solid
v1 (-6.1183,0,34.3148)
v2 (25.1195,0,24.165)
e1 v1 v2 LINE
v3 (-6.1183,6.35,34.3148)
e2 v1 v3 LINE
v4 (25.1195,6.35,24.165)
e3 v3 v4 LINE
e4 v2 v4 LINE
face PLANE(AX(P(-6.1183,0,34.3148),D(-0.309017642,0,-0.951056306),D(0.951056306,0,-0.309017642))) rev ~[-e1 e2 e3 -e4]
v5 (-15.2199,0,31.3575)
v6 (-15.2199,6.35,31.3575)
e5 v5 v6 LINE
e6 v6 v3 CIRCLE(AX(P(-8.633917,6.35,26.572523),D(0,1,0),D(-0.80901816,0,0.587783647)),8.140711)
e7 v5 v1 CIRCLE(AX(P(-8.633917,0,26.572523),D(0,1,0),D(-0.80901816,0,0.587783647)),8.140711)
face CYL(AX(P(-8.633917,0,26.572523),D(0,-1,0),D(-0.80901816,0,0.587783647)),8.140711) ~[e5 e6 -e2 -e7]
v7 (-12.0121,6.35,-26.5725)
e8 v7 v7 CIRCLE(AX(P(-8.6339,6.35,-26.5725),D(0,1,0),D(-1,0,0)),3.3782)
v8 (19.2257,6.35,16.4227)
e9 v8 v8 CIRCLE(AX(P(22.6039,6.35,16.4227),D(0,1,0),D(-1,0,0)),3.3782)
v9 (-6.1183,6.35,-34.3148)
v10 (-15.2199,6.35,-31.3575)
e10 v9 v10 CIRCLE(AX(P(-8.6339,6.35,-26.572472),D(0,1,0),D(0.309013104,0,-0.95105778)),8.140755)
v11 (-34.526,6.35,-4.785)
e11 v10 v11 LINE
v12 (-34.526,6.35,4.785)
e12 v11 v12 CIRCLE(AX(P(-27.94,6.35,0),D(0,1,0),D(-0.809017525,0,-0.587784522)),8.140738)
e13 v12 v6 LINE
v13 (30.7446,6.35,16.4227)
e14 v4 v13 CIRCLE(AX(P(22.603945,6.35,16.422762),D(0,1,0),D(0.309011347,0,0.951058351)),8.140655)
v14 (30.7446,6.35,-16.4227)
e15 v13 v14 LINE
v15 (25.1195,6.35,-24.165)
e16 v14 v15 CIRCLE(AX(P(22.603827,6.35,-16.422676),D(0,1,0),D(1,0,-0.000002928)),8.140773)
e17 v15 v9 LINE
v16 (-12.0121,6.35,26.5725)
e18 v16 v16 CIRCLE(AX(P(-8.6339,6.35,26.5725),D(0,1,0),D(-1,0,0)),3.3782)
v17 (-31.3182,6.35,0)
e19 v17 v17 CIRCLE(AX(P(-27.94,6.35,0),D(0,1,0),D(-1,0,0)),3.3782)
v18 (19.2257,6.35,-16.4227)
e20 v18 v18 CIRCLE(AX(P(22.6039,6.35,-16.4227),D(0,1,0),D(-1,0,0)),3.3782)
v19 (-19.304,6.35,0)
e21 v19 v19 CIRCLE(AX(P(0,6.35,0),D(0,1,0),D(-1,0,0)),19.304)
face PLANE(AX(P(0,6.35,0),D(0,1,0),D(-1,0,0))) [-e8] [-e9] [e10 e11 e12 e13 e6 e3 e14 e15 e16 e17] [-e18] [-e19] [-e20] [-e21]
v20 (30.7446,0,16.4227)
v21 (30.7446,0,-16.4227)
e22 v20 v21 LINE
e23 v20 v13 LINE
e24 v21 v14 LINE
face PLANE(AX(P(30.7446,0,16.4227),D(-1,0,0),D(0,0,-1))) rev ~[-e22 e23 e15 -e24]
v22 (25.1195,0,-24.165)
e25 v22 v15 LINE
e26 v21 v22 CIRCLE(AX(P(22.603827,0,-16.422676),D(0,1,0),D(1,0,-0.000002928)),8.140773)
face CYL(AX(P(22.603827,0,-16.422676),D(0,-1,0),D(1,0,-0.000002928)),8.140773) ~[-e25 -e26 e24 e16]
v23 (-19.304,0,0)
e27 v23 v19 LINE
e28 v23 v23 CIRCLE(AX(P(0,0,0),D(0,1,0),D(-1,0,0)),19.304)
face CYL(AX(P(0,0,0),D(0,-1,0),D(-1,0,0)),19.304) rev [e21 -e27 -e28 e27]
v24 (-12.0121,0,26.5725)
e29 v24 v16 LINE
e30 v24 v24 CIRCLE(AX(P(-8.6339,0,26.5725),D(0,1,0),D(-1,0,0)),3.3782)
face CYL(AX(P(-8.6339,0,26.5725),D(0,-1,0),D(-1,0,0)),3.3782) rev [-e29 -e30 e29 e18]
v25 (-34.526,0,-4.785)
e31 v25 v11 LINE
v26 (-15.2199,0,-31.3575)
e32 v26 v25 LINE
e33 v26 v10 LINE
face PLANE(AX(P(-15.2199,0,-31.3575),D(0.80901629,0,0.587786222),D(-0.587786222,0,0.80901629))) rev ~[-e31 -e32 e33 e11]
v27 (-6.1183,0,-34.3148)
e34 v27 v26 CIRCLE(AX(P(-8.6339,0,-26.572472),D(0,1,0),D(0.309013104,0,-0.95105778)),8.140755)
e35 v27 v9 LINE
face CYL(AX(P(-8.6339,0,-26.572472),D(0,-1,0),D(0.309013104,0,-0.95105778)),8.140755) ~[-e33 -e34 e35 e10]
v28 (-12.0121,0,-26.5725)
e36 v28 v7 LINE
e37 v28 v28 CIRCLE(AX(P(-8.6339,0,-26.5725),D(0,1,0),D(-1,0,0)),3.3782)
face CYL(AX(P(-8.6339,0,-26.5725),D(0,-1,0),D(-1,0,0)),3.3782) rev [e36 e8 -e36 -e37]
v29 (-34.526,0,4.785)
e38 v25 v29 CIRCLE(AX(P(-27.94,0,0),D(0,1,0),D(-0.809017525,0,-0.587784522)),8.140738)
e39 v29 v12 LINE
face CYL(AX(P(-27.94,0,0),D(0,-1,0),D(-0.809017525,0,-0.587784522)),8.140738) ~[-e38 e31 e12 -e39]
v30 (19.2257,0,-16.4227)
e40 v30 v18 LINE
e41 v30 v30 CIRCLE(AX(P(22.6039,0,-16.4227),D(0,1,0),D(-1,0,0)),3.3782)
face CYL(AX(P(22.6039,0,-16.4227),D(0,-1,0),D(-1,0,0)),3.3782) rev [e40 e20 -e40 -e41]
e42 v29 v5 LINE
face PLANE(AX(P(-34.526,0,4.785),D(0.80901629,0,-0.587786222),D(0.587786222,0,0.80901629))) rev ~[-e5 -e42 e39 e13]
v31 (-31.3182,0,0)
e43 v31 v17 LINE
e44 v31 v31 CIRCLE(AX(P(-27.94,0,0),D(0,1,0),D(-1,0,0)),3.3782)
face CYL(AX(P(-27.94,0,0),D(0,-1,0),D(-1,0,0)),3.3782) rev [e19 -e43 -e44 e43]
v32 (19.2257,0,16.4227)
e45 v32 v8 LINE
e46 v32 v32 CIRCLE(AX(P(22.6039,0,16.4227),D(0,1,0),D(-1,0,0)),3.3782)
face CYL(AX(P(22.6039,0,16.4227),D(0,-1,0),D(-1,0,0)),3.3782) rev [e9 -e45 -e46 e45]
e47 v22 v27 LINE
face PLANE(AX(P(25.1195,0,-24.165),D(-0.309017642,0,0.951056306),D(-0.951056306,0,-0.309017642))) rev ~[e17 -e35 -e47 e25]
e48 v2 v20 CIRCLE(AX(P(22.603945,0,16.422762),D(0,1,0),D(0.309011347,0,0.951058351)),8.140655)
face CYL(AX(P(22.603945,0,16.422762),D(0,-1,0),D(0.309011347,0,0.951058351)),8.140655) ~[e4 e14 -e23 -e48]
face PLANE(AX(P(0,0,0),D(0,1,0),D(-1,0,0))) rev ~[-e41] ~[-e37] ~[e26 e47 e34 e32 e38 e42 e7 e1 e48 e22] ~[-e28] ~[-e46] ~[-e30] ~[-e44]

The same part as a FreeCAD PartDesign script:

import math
import FreeCAD as App
import Part
import Sketcher
Q = App.Units.Quantity

doc = App.newDocument("Part")
params = doc.addObject("Spreadsheet::Sheet", "Params")
for row, (alias, value) in enumerate([
    ("sketch1_diameter", "1.52 in"),
    ("sketch1_diameter2", "0.266 in"),
    ("pad1_length", "0.25 in"),
], start=1):
    params.set(f"A{row}", alias)
    params.set(f"B{row}", "=" + value)
    params.setAlias(f"B{row}", alias)

body = doc.addObject("PartDesign::Body", "Body")

# Sketch on XZ plane
sketch1 = body.newObject("Sketcher::SketchObject", "Sketch")
sketch1.AttachmentSupport = (doc.getObject("XZ_Plane"), [""])
sketch1.MapMode = "FlatFace"
sketch1.addGeometry([
    Part.ArcOfCircle(Part.Circle(App.Vector(-27.94, 0, 0), App.Vector(0, 0, 1), 8.140738), math.radians(144.000052), math.radians(215.999948)),  # 0
    Part.LineSegment(App.Vector(-34.526, 4.785, 0), App.Vector(-15.2199, 31.3575, 0)),  # 1
    Part.ArcOfCircle(Part.Circle(App.Vector(-8.6339, 26.5725, 0), App.Vector(0, 0, 1), 8.140738), math.radians(72.000172), math.radians(144.000052)),  # 2
    Part.LineSegment(App.Vector(-6.1183, 34.3148, 0), App.Vector(25.1195, 24.165, 0)),  # 3
    Part.ArcOfCircle(Part.Circle(App.Vector(22.6039, 16.4227, 0), App.Vector(0, 0, 1), 8.140728), math.radians(0), math.radians(72.000172)),  # 4
    Part.LineSegment(App.Vector(30.7446, 16.4227, 0), App.Vector(30.7446, -16.4227, 0)),  # 5
    Part.ArcOfCircle(Part.Circle(App.Vector(22.6039, -16.4227, 0), App.Vector(0, 0, 1), 8.1407), math.radians(-72.000172), math.radians(0)),  # 6
    Part.LineSegment(App.Vector(25.1195, -24.165, 0), App.Vector(-6.1183, -34.3148, 0)),  # 7
    Part.ArcOfCircle(Part.Circle(App.Vector(-8.6339, -26.5725, 0), App.Vector(0, 0, 1), 8.140728), math.radians(-144.000052), math.radians(-72.000172)),  # 8
    Part.LineSegment(App.Vector(-15.2199, -31.3575, 0), App.Vector(-34.526, -4.785, 0)),  # 9
    Part.Circle(App.Vector(22.6039, -16.4227, 0), App.Vector(0, 0, 1), 3.3782),  # 10
    Part.Circle(App.Vector(0, 0, 0), App.Vector(0, 0, 1), 19.304),  # 11
    Part.Circle(App.Vector(-8.6339, -26.5725, 0), App.Vector(0, 0, 1), 3.3782),  # 12
    Part.Circle(App.Vector(-27.94, 0, 0), App.Vector(0, 0, 1), 3.3782),  # 13
    Part.Circle(App.Vector(22.6039, 16.4227, 0), App.Vector(0, 0, 1), 3.3782),  # 14
    Part.Circle(App.Vector(-8.6339, 26.5725, 0), App.Vector(0, 0, 1), 3.3782),  # 15
], False)
sketch1.addConstraint([
    Sketcher.Constraint("Tangent", 0, 1, 1, 1),
    Sketcher.Constraint("Tangent", 1, 2, 2, 2),
    Sketcher.Constraint("Tangent", 2, 1, 3, 1),
    Sketcher.Constraint("Tangent", 3, 2, 4, 2),
    Sketcher.Constraint("Tangent", 4, 1, 5, 1),
    Sketcher.Constraint("Tangent", 5, 2, 6, 2),
    Sketcher.Constraint("Tangent", 6, 1, 7, 1),
    Sketcher.Constraint("Tangent", 7, 2, 8, 2),
    Sketcher.Constraint("Tangent", 8, 1, 9, 1),
    Sketcher.Constraint("Tangent", 9, 2, 0, 2),
    Sketcher.Constraint("Vertical", 5),
    Sketcher.Constraint("Coincident", 11, 3, -1, 1),
    Sketcher.Constraint("Coincident", 10, 3, 6, 3),
    Sketcher.Constraint("Coincident", 12, 3, 8, 3),
    Sketcher.Constraint("Coincident", 13, 3, 0, 3),
    Sketcher.Constraint("Coincident", 14, 3, 4, 3),
    Sketcher.Constraint("Coincident", 15, 3, 2, 3),
    Sketcher.Constraint("Equal", 0, 2),
    Sketcher.Constraint("Equal", 2, 4),
    Sketcher.Constraint("Equal", 4, 6),
    Sketcher.Constraint("Equal", 6, 8),
    Sketcher.Constraint("Equal", 10, 12),
    Sketcher.Constraint("Equal", 12, 13),
    Sketcher.Constraint("Equal", 13, 14),
    Sketcher.Constraint("Equal", 14, 15),
    Sketcher.Constraint("Symmetric", 2, 3, 8, 3, -1),
    Sketcher.Constraint("PointOnObject", 0, 3, -1),
    Sketcher.Constraint("Vertical", 3, 2, 6, 1),
    Sketcher.Constraint("Equal", 1, 3),
    Sketcher.Constraint("Diameter", 11, Q("1.52 in")),
    Sketcher.Constraint("Diameter", 10, Q("0.266 in")),
    Sketcher.Constraint("DistanceX", 0, 3, -1, 1, Q("1.1 in")),
    Sketcher.Constraint("Angle", 1, Q("54 deg")),
    Sketcher.Constraint("Angle", 3, Q("-18 deg")),
    Sketcher.Constraint("Radius", 0, Q("0.3205 in")),
    Sketcher.Constraint("DistanceY", 5, 2, 5, 1, 32.8454),
])
sketch1.setExpression("Constraints[29]", "Params.sketch1_diameter")
sketch1.setExpression("Constraints[30]", "Params.sketch1_diameter2")
pad1 = body.newObject("PartDesign::Pad", "Pad")
pad1.Profile = sketch1
pad1.setExpression("Length", "Params.pad1_length")
pad1.Reversed = True

doc.recompute()
